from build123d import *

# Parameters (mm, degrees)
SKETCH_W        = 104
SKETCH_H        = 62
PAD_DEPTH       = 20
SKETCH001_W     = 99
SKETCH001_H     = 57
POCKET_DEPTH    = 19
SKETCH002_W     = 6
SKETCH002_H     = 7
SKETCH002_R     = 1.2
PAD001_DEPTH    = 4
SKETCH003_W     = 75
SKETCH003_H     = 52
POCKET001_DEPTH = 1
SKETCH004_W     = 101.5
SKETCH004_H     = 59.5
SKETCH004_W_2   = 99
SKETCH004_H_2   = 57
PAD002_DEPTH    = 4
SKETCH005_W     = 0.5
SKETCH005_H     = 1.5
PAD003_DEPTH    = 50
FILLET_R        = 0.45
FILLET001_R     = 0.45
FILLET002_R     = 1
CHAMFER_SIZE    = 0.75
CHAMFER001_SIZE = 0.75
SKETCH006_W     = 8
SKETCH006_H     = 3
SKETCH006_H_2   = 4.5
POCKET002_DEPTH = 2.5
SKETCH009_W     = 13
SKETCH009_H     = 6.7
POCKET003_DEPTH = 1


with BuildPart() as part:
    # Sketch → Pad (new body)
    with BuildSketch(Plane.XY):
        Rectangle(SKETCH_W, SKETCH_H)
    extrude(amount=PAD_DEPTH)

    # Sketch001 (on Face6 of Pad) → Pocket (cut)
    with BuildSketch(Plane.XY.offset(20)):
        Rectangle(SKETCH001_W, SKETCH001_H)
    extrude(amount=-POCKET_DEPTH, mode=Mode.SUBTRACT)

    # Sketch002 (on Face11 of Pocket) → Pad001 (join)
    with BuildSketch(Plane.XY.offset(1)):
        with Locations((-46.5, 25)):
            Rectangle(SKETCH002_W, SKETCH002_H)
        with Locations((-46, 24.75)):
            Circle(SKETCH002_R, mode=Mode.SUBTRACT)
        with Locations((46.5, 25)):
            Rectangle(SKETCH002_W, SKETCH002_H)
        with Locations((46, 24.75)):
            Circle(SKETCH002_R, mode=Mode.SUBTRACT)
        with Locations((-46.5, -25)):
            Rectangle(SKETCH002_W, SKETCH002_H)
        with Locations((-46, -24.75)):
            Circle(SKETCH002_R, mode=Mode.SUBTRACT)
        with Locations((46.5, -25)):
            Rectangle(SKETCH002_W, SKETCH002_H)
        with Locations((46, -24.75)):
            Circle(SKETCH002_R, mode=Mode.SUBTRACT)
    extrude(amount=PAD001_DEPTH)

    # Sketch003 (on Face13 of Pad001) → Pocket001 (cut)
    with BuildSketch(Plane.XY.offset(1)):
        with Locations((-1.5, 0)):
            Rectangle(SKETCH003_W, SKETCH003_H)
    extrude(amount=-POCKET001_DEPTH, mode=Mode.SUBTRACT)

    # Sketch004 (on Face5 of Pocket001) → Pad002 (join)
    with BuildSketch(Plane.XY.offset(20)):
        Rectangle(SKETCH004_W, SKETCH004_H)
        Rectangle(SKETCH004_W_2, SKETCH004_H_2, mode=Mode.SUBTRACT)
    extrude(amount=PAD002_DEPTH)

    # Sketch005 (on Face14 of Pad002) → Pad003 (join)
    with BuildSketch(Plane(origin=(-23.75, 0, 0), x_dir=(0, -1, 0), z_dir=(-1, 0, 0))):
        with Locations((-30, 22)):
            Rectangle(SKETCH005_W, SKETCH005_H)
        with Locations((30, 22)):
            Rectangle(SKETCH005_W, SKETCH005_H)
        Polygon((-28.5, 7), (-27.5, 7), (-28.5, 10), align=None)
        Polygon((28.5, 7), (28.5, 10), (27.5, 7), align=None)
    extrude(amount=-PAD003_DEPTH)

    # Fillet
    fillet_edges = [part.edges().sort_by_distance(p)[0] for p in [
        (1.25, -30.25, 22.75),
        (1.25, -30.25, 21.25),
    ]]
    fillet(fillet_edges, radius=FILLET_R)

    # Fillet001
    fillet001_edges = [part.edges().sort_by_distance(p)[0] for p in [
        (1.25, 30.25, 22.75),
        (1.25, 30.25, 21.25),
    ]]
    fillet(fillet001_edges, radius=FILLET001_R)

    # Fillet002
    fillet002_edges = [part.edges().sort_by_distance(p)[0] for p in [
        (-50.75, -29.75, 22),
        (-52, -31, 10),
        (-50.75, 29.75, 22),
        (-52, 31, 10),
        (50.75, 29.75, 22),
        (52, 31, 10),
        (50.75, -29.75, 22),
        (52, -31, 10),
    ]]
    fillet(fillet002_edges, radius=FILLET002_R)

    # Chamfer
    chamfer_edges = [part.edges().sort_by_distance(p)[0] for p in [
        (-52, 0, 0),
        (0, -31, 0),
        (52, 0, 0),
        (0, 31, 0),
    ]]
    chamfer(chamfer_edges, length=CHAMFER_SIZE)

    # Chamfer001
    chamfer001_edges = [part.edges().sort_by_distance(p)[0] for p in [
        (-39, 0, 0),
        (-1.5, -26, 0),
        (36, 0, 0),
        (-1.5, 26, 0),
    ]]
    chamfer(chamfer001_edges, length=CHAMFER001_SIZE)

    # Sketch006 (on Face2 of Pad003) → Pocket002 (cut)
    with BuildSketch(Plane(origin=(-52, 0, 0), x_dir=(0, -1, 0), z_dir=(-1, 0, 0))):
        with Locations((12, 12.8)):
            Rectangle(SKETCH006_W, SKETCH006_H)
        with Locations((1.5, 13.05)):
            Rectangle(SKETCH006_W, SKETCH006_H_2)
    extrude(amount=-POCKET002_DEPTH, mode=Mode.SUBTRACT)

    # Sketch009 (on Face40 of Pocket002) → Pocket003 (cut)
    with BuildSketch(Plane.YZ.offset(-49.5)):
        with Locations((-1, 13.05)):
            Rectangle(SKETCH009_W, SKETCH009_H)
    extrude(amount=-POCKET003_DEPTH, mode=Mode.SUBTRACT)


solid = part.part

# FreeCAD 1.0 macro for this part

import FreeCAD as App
import Part
import Sketcher
from FreeCAD import Vector


def edges_at(feature, points):
    """Names of the edges that pass closest to the given points."""
    edges = feature.Shape.Edges
    near = lambda p: min(range(len(edges)), key=lambda i: edges[i].distToShape(Part.Vertex(*p))[0])
    return sorted({f"Edge{near(p) + 1}" for p in points})

doc = App.newDocument("Part")
body = doc.addObject("PartDesign::Body", "Body")

# Sketch on XY plane
sketch1 = doc.addObject("Sketcher::SketchObject", "Sketch")
body.addObject(sketch1)
sketch1.AttachmentSupport = (doc.XY_Plane, [""])
sketch1.MapMode = "FlatFace"
sketch1.addGeometry(Part.LineSegment(Vector(-52, 31, 0), Vector(-52, -31, 0)), False)
sketch1.addGeometry(Part.LineSegment(Vector(-52, -31, 0), Vector(52, -31, 0)), False)
sketch1.addGeometry(Part.LineSegment(Vector(52, -31, 0), Vector(52, 31, 0)), False)
sketch1.addGeometry(Part.LineSegment(Vector(52, 31, 0), Vector(-52, 31, 0)), False)
sketch1.addConstraint(Sketcher.Constraint("Coincident", 0, 2, 1, 1))
sketch1.addConstraint(Sketcher.Constraint("Coincident", 1, 2, 2, 1))
sketch1.addConstraint(Sketcher.Constraint("Coincident", 2, 2, 3, 1))
sketch1.addConstraint(Sketcher.Constraint("Coincident", 3, 2, 0, 1))
sketch1.addConstraint(Sketcher.Constraint("Vertical", 0))
sketch1.addConstraint(Sketcher.Constraint("Horizontal", 1))
sketch1.addConstraint(Sketcher.Constraint("Vertical", 2))
sketch1.addConstraint(Sketcher.Constraint("Horizontal", 3))
sketch1.addConstraint(Sketcher.Constraint("Symmetric", 0, 2, 2, 2, -1, 1))
sketch1.addConstraint(Sketcher.Constraint("DistanceX", 1, 1, 1, 2, 104.0))
sketch1.addConstraint(Sketcher.Constraint("DistanceY", 0, 2, 0, 1, 62.0))
pad1 = doc.addObject("PartDesign::Pad", "Pad")
body.addObject(pad1)
pad1.Profile = sketch1
pad1.Length = 20

# Sketch on XY plane
sketch2 = doc.addObject("Sketcher::SketchObject", "Sketch001")
body.addObject(sketch2)
sketch2.AttachmentSupport = (doc.XY_Plane, [""])
sketch2.MapMode = "FlatFace"
sketch2.AttachmentOffset = App.Placement(Vector(0, 0, 20), App.Rotation())
sketch2.addGeometry(Part.LineSegment(Vector(-49.5, 28.5, 0), Vector(-49.5, -28.5, 0)), False)
sketch2.addGeometry(Part.LineSegment(Vector(-49.5, -28.5, 0), Vector(49.5, -28.5, 0)), False)
sketch2.addGeometry(Part.LineSegment(Vector(49.5, -28.5, 0), Vector(49.5, 28.5, 0)), False)
sketch2.addGeometry(Part.LineSegment(Vector(49.5, 28.5, 0), Vector(-49.5, 28.5, 0)), False)
sketch2.addConstraint(Sketcher.Constraint("Coincident", 0, 2, 1, 1))
sketch2.addConstraint(Sketcher.Constraint("Coincident", 1, 2, 2, 1))
sketch2.addConstraint(Sketcher.Constraint("Coincident", 2, 2, 3, 1))
sketch2.addConstraint(Sketcher.Constraint("Coincident", 3, 2, 0, 1))
sketch2.addConstraint(Sketcher.Constraint("Vertical", 0))
sketch2.addConstraint(Sketcher.Constraint("Horizontal", 1))
sketch2.addConstraint(Sketcher.Constraint("Vertical", 2))
sketch2.addConstraint(Sketcher.Constraint("Horizontal", 3))
sketch2.addConstraint(Sketcher.Constraint("Symmetric", 0, 2, 2, 2, -1, 1))
sketch2.addConstraint(Sketcher.Constraint("DistanceX", 1, 1, 1, 2, 99.0))
sketch2.addConstraint(Sketcher.Constraint("DistanceY", 0, 2, 0, 1, 57.0))
pocket1 = doc.addObject("PartDesign::Pocket", "Pocket")
body.addObject(pocket1)
pocket1.Profile = sketch2
pocket1.Length = 19

# Sketch on XY plane
sketch3 = doc.addObject("Sketcher::SketchObject", "Sketch002")
body.addObject(sketch3)
sketch3.AttachmentSupport = (doc.XY_Plane, [""])
sketch3.MapMode = "FlatFace"
sketch3.AttachmentOffset = App.Placement(Vector(0, 0, 1), App.Rotation())
sketch3.addGeometry(Part.LineSegment(Vector(-49.5, 28.5, 0), Vector(-49.5, 21.5, 0)), False)
sketch3.addGeometry(Part.LineSegment(Vector(-49.5, 21.5, 0), Vector(-43.5, 21.5, 0)), False)
sketch3.addGeometry(Part.LineSegment(Vector(-43.5, 21.5, 0), Vector(-43.5, 28.5, 0)), False)
sketch3.addGeometry(Part.LineSegment(Vector(-43.5, 28.5, 0), Vector(-49.5, 28.5, 0)), False)
sketch3.addGeometry(Part.Circle(Vector(-46, 24.75, 0), Vector(0, 0, 1), 1.2), False)
sketch3.addGeometry(Part.LineSegment(Vector(43.5, 28.5, 0), Vector(43.5, 21.5, 0)), False)
sketch3.addGeometry(Part.LineSegment(Vector(43.5, 21.5, 0), Vector(49.5, 21.5, 0)), False)
sketch3.addGeometry(Part.LineSegment(Vector(49.5, 21.5, 0), Vector(49.5, 28.5, 0)), False)
sketch3.addGeometry(Part.LineSegment(Vector(49.5, 28.5, 0), Vector(43.5, 28.5, 0)), False)
sketch3.addGeometry(Part.Circle(Vector(46, 24.75, 0), Vector(0, 0, 1), 1.2), False)
sketch3.addGeometry(Part.LineSegment(Vector(-49.5, -21.5, 0), Vector(-49.5, -28.5, 0)), False)
sketch3.addGeometry(Part.LineSegment(Vector(-49.5, -28.5, 0), Vector(-43.5, -28.5, 0)), False)
sketch3.addGeometry(Part.LineSegment(Vector(-43.5, -28.5, 0), Vector(-43.5, -21.5, 0)), False)
sketch3.addGeometry(Part.LineSegment(Vector(-43.5, -21.5, 0), Vector(-49.5, -21.5, 0)), False)
sketch3.addGeometry(Part.Circle(Vector(-46, -24.75, 0), Vector(0, 0, 1), 1.2), False)
sketch3.addGeometry(Part.LineSegment(Vector(43.5, -21.5, 0), Vector(43.5, -28.5, 0)), False)
sketch3.addGeometry(Part.LineSegment(Vector(43.5, -28.5, 0), Vector(49.5, -28.5, 0)), False)
sketch3.addGeometry(Part.LineSegment(Vector(49.5, -28.5, 0), Vector(49.5, -21.5, 0)), False)
sketch3.addGeometry(Part.LineSegment(Vector(49.5, -21.5, 0), Vector(43.5, -21.5, 0)), False)
sketch3.addGeometry(Part.Circle(Vector(46, -24.75, 0), Vector(0, 0, 1), 1.2), False)
sketch3.addConstraint(Sketcher.Constraint("Coincident", 0, 2, 1, 1))
sketch3.addConstraint(Sketcher.Constraint("Coincident", 1, 2, 2, 1))
sketch3.addConstraint(Sketcher.Constraint("Coincident", 2, 2, 3, 1))
sketch3.addConstraint(Sketcher.Constraint("Coincident", 3, 2, 0, 1))
sketch3.addConstraint(Sketcher.Constraint("Coincident", 5, 2, 6, 1))
sketch3.addConstraint(Sketcher.Constraint("Coincident", 6, 2, 7, 1))
sketch3.addConstraint(Sketcher.Constraint("Coincident", 7, 2, 8, 1))
sketch3.addConstraint(Sketcher.Constraint("Coincident", 8, 2, 5, 1))
sketch3.addConstraint(Sketcher.Constraint("Coincident", 10, 2, 11, 1))
sketch3.addConstraint(Sketcher.Constraint("Coincident", 11, 2, 12, 1))
sketch3.addConstraint(Sketcher.Constraint("Coincident", 12, 2, 13, 1))
sketch3.addConstraint(Sketcher.Constraint("Coincident", 13, 2, 10, 1))
sketch3.addConstraint(Sketcher.Constraint("Coincident", 15, 2, 16, 1))
sketch3.addConstraint(Sketcher.Constraint("Coincident", 16, 2, 17, 1))
sketch3.addConstraint(Sketcher.Constraint("Coincident", 17, 2, 18, 1))
sketch3.addConstraint(Sketcher.Constraint("Coincident", 18, 2, 15, 1))
sketch3.addConstraint(Sketcher.Constraint("Vertical", 0))
sketch3.addConstraint(Sketcher.Constraint("Horizontal", 1))
sketch3.addConstraint(Sketcher.Constraint("Vertical", 2))
sketch3.addConstraint(Sketcher.Constraint("Horizontal", 3))
sketch3.addConstraint(Sketcher.Constraint("Vertical", 5))
sketch3.addConstraint(Sketcher.Constraint("Horizontal", 6))
sketch3.addConstraint(Sketcher.Constraint("Vertical", 7))
sketch3.addConstraint(Sketcher.Constraint("Horizontal", 8))
sketch3.addConstraint(Sketcher.Constraint("Vertical", 10))
sketch3.addConstraint(Sketcher.Constraint("Horizontal", 11))
sketch3.addConstraint(Sketcher.Constraint("Vertical", 12))
sketch3.addConstraint(Sketcher.Constraint("Horizontal", 13))
sketch3.addConstraint(Sketcher.Constraint("Vertical", 15))
sketch3.addConstraint(Sketcher.Constraint("Horizontal", 16))
sketch3.addConstraint(Sketcher.Constraint("Vertical", 17))
sketch3.addConstraint(Sketcher.Constraint("Horizontal", 18))
sketch3.addConstraint(Sketcher.Constraint("Equal", 4, 9))
sketch3.addConstraint(Sketcher.Constraint("Equal", 9, 14))
sketch3.addConstraint(Sketcher.Constraint("Equal", 14, 19))
sketch3.addConstraint(Sketcher.Constraint("Symmetric", 9, 3, 14, 3, -1, 1))
sketch3.addConstraint(Sketcher.Constraint("Symmetric", 4, 3, 19, 3, -1, 1))
sketch3.addConstraint(Sketcher.Constraint("Symmetric", 7, 2, 10, 2, -1, 1))
sketch3.addConstraint(Sketcher.Constraint("Symmetric", 5, 2, 12, 2, -1, 1))
sketch3.addConstraint(Sketcher.Constraint("Symmetric", 2, 2, 15, 2, -1, 1))
sketch3.addConstraint(Sketcher.Constraint("Symmetric", 0, 2, 17, 2, -1, 1))
sketch3.addConstraint(Sketcher.Constraint("Symmetric", 4, 3, 9, 3, -2))
sketch3.addConstraint(Sketcher.Constraint("Symmetric", 1, 2, 5, 2, -2))
sketch3.addConstraint(Sketcher.Constraint("Symmetric", 3, 2, 7, 2, -2))
sketch3.addConstraint(Sketcher.Constraint("Diameter", 4, 2.4))
sketch3.addConstraint(Sketcher.Constraint("DistanceX", 1, 1, 1, 2, 6.0))
sketch3.addConstraint(Sketcher.Constraint("DistanceY", 0, 2, 0, 1, 7.0))
sketch3.addConstraint(Sketcher.Constraint("DistanceX", 4, 3, -1, 1, 46.0))
sketch3.addConstraint(Sketcher.Constraint("DistanceX", 1, 2, 5, 2, 87.0))
sketch3.addConstraint(Sketcher.Constraint("DistanceY", 10, 2, 0, 2, 50.0))
sketch3.addConstraint(Sketcher.Constraint("DistanceY", 14, 3, 4, 3, 49.5))
pad2 = doc.addObject("PartDesign::Pad", "Pad001")
body.addObject(pad2)
pad2.Profile = sketch3
pad2.Length = 4

# Sketch on XY plane
sketch4 = doc.addObject("Sketcher::SketchObject", "Sketch003")
body.addObject(sketch4)
sketch4.AttachmentSupport = (doc.XY_Plane, [""])
sketch4.MapMode = "FlatFace"
sketch4.AttachmentOffset = App.Placement(Vector(0, 0, 1), App.Rotation())
sketch4.addGeometry(Part.LineSegment(Vector(-39, 26, 0), Vector(-39, -26, 0)), False)
sketch4.addGeometry(Part.LineSegment(Vector(-39, -26, 0), Vector(36, -26, 0)), False)
sketch4.addGeometry(Part.LineSegment(Vector(36, -26, 0), Vector(36, 26, 0)), False)
sketch4.addGeometry(Part.LineSegment(Vector(36, 26, 0), Vector(-39, 26, 0)), False)
sketch4.addConstraint(Sketcher.Constraint("Coincident", 0, 2, 1, 1))
sketch4.addConstraint(Sketcher.Constraint("Coincident", 1, 2, 2, 1))
sketch4.addConstraint(Sketcher.Constraint("Coincident", 2, 2, 3, 1))
sketch4.addConstraint(Sketcher.Constraint("Coincident", 3, 2, 0, 1))
sketch4.addConstraint(Sketcher.Constraint("Vertical", 0))
sketch4.addConstraint(Sketcher.Constraint("Horizontal", 1))
sketch4.addConstraint(Sketcher.Constraint("Vertical", 2))
sketch4.addConstraint(Sketcher.Constraint("Horizontal", 3))
sketch4.addConstraint(Sketcher.Constraint("DistanceX", 1, 1, 1, 2, 75.0))
sketch4.addConstraint(Sketcher.Constraint("DistanceY", 0, 2, 0, 1, 52.0))
sketch4.addConstraint(Sketcher.Constraint("DistanceX", 0, 2, -1, 1, 39.0))
sketch4.addConstraint(Sketcher.Constraint("DistanceY", 0, 2, -1, 1, 26.0))
pocket2 = doc.addObject("PartDesign::Pocket", "Pocket001")
body.addObject(pocket2)
pocket2.Profile = sketch4
pocket2.Length = 1

# Sketch on XY plane
sketch5 = doc.addObject("Sketcher::SketchObject", "Sketch004")
body.addObject(sketch5)
sketch5.AttachmentSupport = (doc.XY_Plane, [""])
sketch5.MapMode = "FlatFace"
sketch5.AttachmentOffset = App.Placement(Vector(0, 0, 20), App.Rotation())
sketch5.addGeometry(Part.LineSegment(Vector(-50.75, 29.75, 0), Vector(-50.75, -29.75, 0)), False)
sketch5.addGeometry(Part.LineSegment(Vector(-50.75, -29.75, 0), Vector(50.75, -29.75, 0)), False)
sketch5.addGeometry(Part.LineSegment(Vector(50.75, -29.75, 0), Vector(50.75, 29.75, 0)), False)
sketch5.addGeometry(Part.LineSegment(Vector(50.75, 29.75, 0), Vector(-50.75, 29.75, 0)), False)
sketch5.addGeometry(Part.LineSegment(Vector(49.5, -28.5, 0), Vector(-49.5, -28.5, 0)), False)
sketch5.addGeometry(Part.LineSegment(Vector(-49.5, -28.5, 0), Vector(-49.5, 28.5, 0)), False)
sketch5.addGeometry(Part.LineSegment(Vector(-49.5, 28.5, 0), Vector(49.5, 28.5, 0)), False)
sketch5.addGeometry(Part.LineSegment(Vector(49.5, 28.5, 0), Vector(49.5, -28.5, 0)), False)
sketch5.addConstraint(Sketcher.Constraint("Coincident", 0, 2, 1, 1))
sketch5.addConstraint(Sketcher.Constraint("Coincident", 1, 2, 2, 1))
sketch5.addConstraint(Sketcher.Constraint("Coincident", 2, 2, 3, 1))
sketch5.addConstraint(Sketcher.Constraint("Coincident", 3, 2, 0, 1))
sketch5.addConstraint(Sketcher.Constraint("Coincident", 4, 2, 5, 1))
sketch5.addConstraint(Sketcher.Constraint("Coincident", 5, 2, 6, 1))
sketch5.addConstraint(Sketcher.Constraint("Coincident", 6, 2, 7, 1))
sketch5.addConstraint(Sketcher.Constraint("Coincident", 7, 2, 4, 1))
sketch5.addConstraint(Sketcher.Constraint("Vertical", 0))
sketch5.addConstraint(Sketcher.Constraint("Horizontal", 1))
sketch5.addConstraint(Sketcher.Constraint("Vertical", 2))
sketch5.addConstraint(Sketcher.Constraint("Horizontal", 3))
sketch5.addConstraint(Sketcher.Constraint("Horizontal", 4))
sketch5.addConstraint(Sketcher.Constraint("Vertical", 5))
sketch5.addConstraint(Sketcher.Constraint("Horizontal", 6))
sketch5.addConstraint(Sketcher.Constraint("Vertical", 7))
sketch5.addConstraint(Sketcher.Constraint("Symmetric", 0, 2, 2, 2, -1, 1))
sketch5.addConstraint(Sketcher.Constraint("Symmetric", 4, 2, 6, 2, -1, 1))
sketch5.addConstraint(Sketcher.Constraint("DistanceX", 4, 2, 4, 1, 99.0))
sketch5.addConstraint(Sketcher.Constraint("DistanceY", 5, 1, 5, 2, 57.0))
sketch5.addConstraint(Sketcher.Constraint("DistanceX", 1, 1, 1, 2, 101.5))
sketch5.addConstraint(Sketcher.Constraint("DistanceY", 0, 2, 0, 1, 59.5))
pad3 = doc.addObject("PartDesign::Pad", "Pad002")
body.addObject(pad3)
pad3.Profile = sketch5
pad3.Length = 4

# Sketch on YZ plane
sketch6 = doc.addObject("Sketcher::SketchObject", "Sketch005")
body.addObject(sketch6)
sketch6.AttachmentSupport = (doc.YZ_Plane, [""])
sketch6.MapMode = "FlatFace"
sketch6.AttachmentOffset = App.Placement(Vector(0, 0, -23.75), App.Rotation())
sketch6.addGeometry(Part.LineSegment(Vector(30.25, 22.75, 0), Vector(30.25, 21.25, 0)), False)
sketch6.addGeometry(Part.LineSegment(Vector(30.25, 21.25, 0), Vector(29.75, 21.25, 0)), False)
sketch6.addGeometry(Part.LineSegment(Vector(29.75, 21.25, 0), Vector(29.75, 22.75, 0)), False)
sketch6.addGeometry(Part.LineSegment(Vector(29.75, 22.75, 0), Vector(30.25, 22.75, 0)), False)
sketch6.addGeometry(Part.LineSegment(Vector(-29.75, 22.75, 0), Vector(-29.75, 21.25, 0)), False)
sketch6.addGeometry(Part.LineSegment(Vector(-29.75, 21.25, 0), Vector(-30.25, 21.25, 0)), False)
sketch6.addGeometry(Part.LineSegment(Vector(-30.25, 21.25, 0), Vector(-30.25, 22.75, 0)), False)
sketch6.addGeometry(Part.LineSegment(Vector(-30.25, 22.75, 0), Vector(-29.75, 22.75, 0)), False)
sketch6.addGeometry(Part.LineSegment(Vector(28.5, 7, 0), Vector(27.5, 7, 0)), False)
sketch6.addGeometry(Part.LineSegment(Vector(27.5, 7, 0), Vector(28.5, 10, 0)), False)
sketch6.addGeometry(Part.LineSegment(Vector(28.5, 10, 0), Vector(28.5, 7, 0)), False)
sketch6.addGeometry(Part.LineSegment(Vector(-28.5, 7, 0), Vector(-28.5, 10, 0)), False)
sketch6.addGeometry(Part.LineSegment(Vector(-28.5, 10, 0), Vector(-27.5, 7, 0)), False)
sketch6.addGeometry(Part.LineSegment(Vector(-27.5, 7, 0), Vector(-28.5, 7, 0)), False)
sketch6.addConstraint(Sketcher.Constraint("Coincident", 0, 2, 1, 1))
sketch6.addConstraint(Sketcher.Constraint("Coincident", 1, 2, 2, 1))
sketch6.addConstraint(Sketcher.Constraint("Coincident", 2, 2, 3, 1))
sketch6.addConstraint(Sketcher.Constraint("Coincident", 3, 2, 0, 1))
sketch6.addConstraint(Sketcher.Constraint("Coincident", 4, 2, 5, 1))
sketch6.addConstraint(Sketcher.Constraint("Coincident", 5, 2, 6, 1))
sketch6.addConstraint(Sketcher.Constraint("Coincident", 6, 2, 7, 1))
sketch6.addConstraint(Sketcher.Constraint("Coincident", 7, 2, 4, 1))
sketch6.addConstraint(Sketcher.Constraint("Coincident", 8, 2, 9, 1))
sketch6.addConstraint(Sketcher.Constraint("Coincident", 9, 2, 10, 1))
sketch6.addConstraint(Sketcher.Constraint("Coincident", 10, 2, 8, 1))
sketch6.addConstraint(Sketcher.Constraint("Coincident", 11, 2, 12, 1))
sketch6.addConstraint(Sketcher.Constraint("Coincident", 12, 2, 13, 1))
sketch6.addConstraint(Sketcher.Constraint("Coincident", 13, 2, 11, 1))
sketch6.addConstraint(Sketcher.Constraint("Vertical", 0))
sketch6.addConstraint(Sketcher.Constraint("Horizontal", 1))
sketch6.addConstraint(Sketcher.Constraint("Vertical", 2))
sketch6.addConstraint(Sketcher.Constraint("Horizontal", 3))
sketch6.addConstraint(Sketcher.Constraint("Vertical", 4))
sketch6.addConstraint(Sketcher.Constraint("Horizontal", 5))
sketch6.addConstraint(Sketcher.Constraint("Vertical", 6))
sketch6.addConstraint(Sketcher.Constraint("Horizontal", 7))
sketch6.addConstraint(Sketcher.Constraint("Horizontal", 8))
sketch6.addConstraint(Sketcher.Constraint("Vertical", 10))
sketch6.addConstraint(Sketcher.Constraint("Vertical", 11))
sketch6.addConstraint(Sketcher.Constraint("Horizontal", 13))
sketch6.addConstraint(Sketcher.Constraint("Symmetric", 1, 2, 4, 2, -2))
sketch6.addConstraint(Sketcher.Constraint("Symmetric", 3, 2, 6, 2, -2))
sketch6.addConstraint(Sketcher.Constraint("Symmetric", 9, 2, 11, 2, -2))
sketch6.addConstraint(Sketcher.Constraint("Symmetric", 8, 2, 12, 2, -2))
sketch6.addConstraint(Sketcher.Constraint("DistanceX", 8, 2, 8, 1, 1.0))
sketch6.addConstraint(Sketcher.Constraint("DistanceY", 10, 2, 10, 1, 3.0))
sketch6.addConstraint(Sketcher.Constraint("DistanceX", 1, 2, 1, 1, 0.5))
sketch6.addConstraint(Sketcher.Constraint("DistanceY", 0, 2, 0, 1, 1.5))
sketch6.addConstraint(Sketcher.Constraint("DistanceY", -1, 1, 8, 2, 7.0))
sketch6.addConstraint(Sketcher.Constraint("DistanceX", 4, 2, 0, 2, 60.0))
sketch6.addConstraint(Sketcher.Constraint("DistanceX", 11, 2, 8, 2, 56.0))
sketch6.addConstraint(Sketcher.Constraint("DistanceY", -1, 1, 0, 2, 21.25))
pad4 = doc.addObject("PartDesign::Pad", "Pad003")
body.addObject(pad4)
pad4.Profile = sketch6
pad4.Length = 50
doc.recompute()

fillet = doc.addObject("PartDesign::Fillet", "Fillet")
body.addObject(fillet)
fillet.Base = (pad4, edges_at(pad4, [(1.25, -30.25, 22.75), (1.25, -30.25, 21.25)]))
fillet.Radius = 0.45
doc.recompute()

fillet2 = doc.addObject("PartDesign::Fillet", "Fillet001")
body.addObject(fillet2)
fillet2.Base = (fillet, edges_at(fillet, [(1.25, 30.25, 22.75), (1.25, 30.25, 21.25)]))
fillet2.Radius = 0.45
doc.recompute()

fillet3 = doc.addObject("PartDesign::Fillet", "Fillet002")
body.addObject(fillet3)
fillet3.Base = (fillet2, edges_at(fillet2, [
    (-50.75, -29.75, 22),
    (-52, -31, 10),
    (-50.75, 29.75, 22),
    (-52, 31, 10),
    (50.75, 29.75, 22),
    (52, 31, 10),
    (50.75, -29.75, 22),
    (52, -31, 10),
]))
fillet3.Radius = 1
doc.recompute()

chamfer = doc.addObject("PartDesign::Chamfer", "Chamfer")
body.addObject(chamfer)
chamfer.Base = (fillet3, edges_at(fillet3, [
    (-52, 0, 0),
    (0, -31, 0),
    (52, 0, 0),
    (0, 31, 0),
]))
chamfer.Size = 0.75
doc.recompute()

chamfer2 = doc.addObject("PartDesign::Chamfer", "Chamfer001")
body.addObject(chamfer2)
chamfer2.Base = (chamfer, edges_at(chamfer, [
    (-39, 0, 0),
    (-1.5, -26, 0),
    (36, 0, 0),
    (-1.5, 26, 0),
]))
chamfer2.Size = 0.75

# Sketch on YZ plane
sketch7 = doc.addObject("Sketcher::SketchObject", "Sketch006")
body.addObject(sketch7)
sketch7.AttachmentSupport = (doc.YZ_Plane, [""])
sketch7.MapMode = "FlatFace"
sketch7.AttachmentOffset = App.Placement(Vector(0, 0, -52), App.Rotation())
sketch7.addGeometry(Part.LineSegment(Vector(-8, 14.3, 0), Vector(-8, 11.3, 0)), False)
sketch7.addGeometry(Part.LineSegment(Vector(-8, 11.3, 0), Vector(-16, 11.3, 0)), False)
sketch7.addGeometry(Part.LineSegment(Vector(-16, 11.3, 0), Vector(-16, 14.3, 0)), False)
sketch7.addGeometry(Part.LineSegment(Vector(-16, 14.3, 0), Vector(-8, 14.3, 0)), False)
sketch7.addGeometry(Part.LineSegment(Vector(2.5, 15.3, 0), Vector(2.5, 10.8, 0)), False)
sketch7.addGeometry(Part.LineSegment(Vector(2.5, 10.8, 0), Vector(-5.5, 10.8, 0)), False)
sketch7.addGeometry(Part.LineSegment(Vector(-5.5, 10.8, 0), Vector(-5.5, 15.3, 0)), False)
sketch7.addGeometry(Part.LineSegment(Vector(-5.5, 15.3, 0), Vector(2.5, 15.3, 0)), False)
sketch7.addConstraint(Sketcher.Constraint("Coincident", 0, 2, 1, 1))
sketch7.addConstraint(Sketcher.Constraint("Coincident", 1, 2, 2, 1))
sketch7.addConstraint(Sketcher.Constraint("Coincident", 2, 2, 3, 1))
sketch7.addConstraint(Sketcher.Constraint("Coincident", 3, 2, 0, 1))
sketch7.addConstraint(Sketcher.Constraint("Coincident", 4, 2, 5, 1))
sketch7.addConstraint(Sketcher.Constraint("Coincident", 5, 2, 6, 1))
sketch7.addConstraint(Sketcher.Constraint("Coincident", 6, 2, 7, 1))
sketch7.addConstraint(Sketcher.Constraint("Coincident", 7, 2, 4, 1))
sketch7.addConstraint(Sketcher.Constraint("Vertical", 0))
sketch7.addConstraint(Sketcher.Constraint("Horizontal", 1))
sketch7.addConstraint(Sketcher.Constraint("Vertical", 2))
sketch7.addConstraint(Sketcher.Constraint("Horizontal", 3))
sketch7.addConstraint(Sketcher.Constraint("Vertical", 4))
sketch7.addConstraint(Sketcher.Constraint("Horizontal", 5))
sketch7.addConstraint(Sketcher.Constraint("Vertical", 6))
sketch7.addConstraint(Sketcher.Constraint("Horizontal", 7))
sketch7.addConstraint(Sketcher.Constraint("Equal", 3, 5))
sketch7.addConstraint(Sketcher.Constraint("DistanceX", 1, 2, 1, 1, 8.0))
sketch7.addConstraint(Sketcher.Constraint("DistanceY", 0, 2, 0, 1, 3.0))
sketch7.addConstraint(Sketcher.Constraint("DistanceY", 4, 2, 4, 1, 4.5))
sketch7.addConstraint(Sketcher.Constraint("DistanceX", 0, 2, -1, 1, 8.0))
sketch7.addConstraint(Sketcher.Constraint("DistanceY", 3, 2, 6, 2, 1.0))
sketch7.addConstraint(Sketcher.Constraint("DistanceY", -1, 1, 0, 2, 11.3))
sketch7.addConstraint(Sketcher.Constraint("DistanceX", -1, 1, 4, 2, 2.5))
pocket3 = doc.addObject("PartDesign::Pocket", "Pocket002")
body.addObject(pocket3)
pocket3.Profile = sketch7
pocket3.Length = 2.5
pocket3.Reversed = True

# Sketch on YZ plane
sketch8 = doc.addObject("Sketcher::SketchObject", "Sketch007")
body.addObject(sketch8)
sketch8.AttachmentSupport = (doc.YZ_Plane, [""])
sketch8.MapMode = "FlatFace"
sketch8.AttachmentOffset = App.Placement(Vector(0, 0, -49.5), App.Rotation())
sketch8.addGeometry(Part.LineSegment(Vector(-7.5, 16.4, 0), Vector(-7.5, 9.7, 0)), False)
sketch8.addGeometry(Part.LineSegment(Vector(-7.5, 9.7, 0), Vector(5.5, 9.7, 0)), False)
sketch8.addGeometry(Part.LineSegment(Vector(5.5, 9.7, 0), Vector(5.5, 16.4, 0)), False)
sketch8.addGeometry(Part.LineSegment(Vector(5.5, 16.4, 0), Vector(-7.5, 16.4, 0)), False)
sketch8.addConstraint(Sketcher.Constraint("Coincident", 0, 2, 1, 1))
sketch8.addConstraint(Sketcher.Constraint("Coincident", 1, 2, 2, 1))
sketch8.addConstraint(Sketcher.Constraint("Coincident", 2, 2, 3, 1))
sketch8.addConstraint(Sketcher.Constraint("Coincident", 3, 2, 0, 1))
sketch8.addConstraint(Sketcher.Constraint("Vertical", 0))
sketch8.addConstraint(Sketcher.Constraint("Horizontal", 1))
sketch8.addConstraint(Sketcher.Constraint("Vertical", 2))
sketch8.addConstraint(Sketcher.Constraint("Horizontal", 3))
sketch8.addConstraint(Sketcher.Constraint("DistanceX", 1, 1, 1, 2, 13.0))
sketch8.addConstraint(Sketcher.Constraint("DistanceY", 0, 2, 0, 1, 6.7))
sketch8.addConstraint(Sketcher.Constraint("DistanceX", 0, 2, -1, 1, 7.5))
sketch8.addConstraint(Sketcher.Constraint("DistanceY", -1, 1, 0, 2, 9.7))
pocket4 = doc.addObject("PartDesign::Pocket", "Pocket003")
body.addObject(pocket4)
pocket4.Profile = sketch8
pocket4.Length = 1

doc.recompute()
